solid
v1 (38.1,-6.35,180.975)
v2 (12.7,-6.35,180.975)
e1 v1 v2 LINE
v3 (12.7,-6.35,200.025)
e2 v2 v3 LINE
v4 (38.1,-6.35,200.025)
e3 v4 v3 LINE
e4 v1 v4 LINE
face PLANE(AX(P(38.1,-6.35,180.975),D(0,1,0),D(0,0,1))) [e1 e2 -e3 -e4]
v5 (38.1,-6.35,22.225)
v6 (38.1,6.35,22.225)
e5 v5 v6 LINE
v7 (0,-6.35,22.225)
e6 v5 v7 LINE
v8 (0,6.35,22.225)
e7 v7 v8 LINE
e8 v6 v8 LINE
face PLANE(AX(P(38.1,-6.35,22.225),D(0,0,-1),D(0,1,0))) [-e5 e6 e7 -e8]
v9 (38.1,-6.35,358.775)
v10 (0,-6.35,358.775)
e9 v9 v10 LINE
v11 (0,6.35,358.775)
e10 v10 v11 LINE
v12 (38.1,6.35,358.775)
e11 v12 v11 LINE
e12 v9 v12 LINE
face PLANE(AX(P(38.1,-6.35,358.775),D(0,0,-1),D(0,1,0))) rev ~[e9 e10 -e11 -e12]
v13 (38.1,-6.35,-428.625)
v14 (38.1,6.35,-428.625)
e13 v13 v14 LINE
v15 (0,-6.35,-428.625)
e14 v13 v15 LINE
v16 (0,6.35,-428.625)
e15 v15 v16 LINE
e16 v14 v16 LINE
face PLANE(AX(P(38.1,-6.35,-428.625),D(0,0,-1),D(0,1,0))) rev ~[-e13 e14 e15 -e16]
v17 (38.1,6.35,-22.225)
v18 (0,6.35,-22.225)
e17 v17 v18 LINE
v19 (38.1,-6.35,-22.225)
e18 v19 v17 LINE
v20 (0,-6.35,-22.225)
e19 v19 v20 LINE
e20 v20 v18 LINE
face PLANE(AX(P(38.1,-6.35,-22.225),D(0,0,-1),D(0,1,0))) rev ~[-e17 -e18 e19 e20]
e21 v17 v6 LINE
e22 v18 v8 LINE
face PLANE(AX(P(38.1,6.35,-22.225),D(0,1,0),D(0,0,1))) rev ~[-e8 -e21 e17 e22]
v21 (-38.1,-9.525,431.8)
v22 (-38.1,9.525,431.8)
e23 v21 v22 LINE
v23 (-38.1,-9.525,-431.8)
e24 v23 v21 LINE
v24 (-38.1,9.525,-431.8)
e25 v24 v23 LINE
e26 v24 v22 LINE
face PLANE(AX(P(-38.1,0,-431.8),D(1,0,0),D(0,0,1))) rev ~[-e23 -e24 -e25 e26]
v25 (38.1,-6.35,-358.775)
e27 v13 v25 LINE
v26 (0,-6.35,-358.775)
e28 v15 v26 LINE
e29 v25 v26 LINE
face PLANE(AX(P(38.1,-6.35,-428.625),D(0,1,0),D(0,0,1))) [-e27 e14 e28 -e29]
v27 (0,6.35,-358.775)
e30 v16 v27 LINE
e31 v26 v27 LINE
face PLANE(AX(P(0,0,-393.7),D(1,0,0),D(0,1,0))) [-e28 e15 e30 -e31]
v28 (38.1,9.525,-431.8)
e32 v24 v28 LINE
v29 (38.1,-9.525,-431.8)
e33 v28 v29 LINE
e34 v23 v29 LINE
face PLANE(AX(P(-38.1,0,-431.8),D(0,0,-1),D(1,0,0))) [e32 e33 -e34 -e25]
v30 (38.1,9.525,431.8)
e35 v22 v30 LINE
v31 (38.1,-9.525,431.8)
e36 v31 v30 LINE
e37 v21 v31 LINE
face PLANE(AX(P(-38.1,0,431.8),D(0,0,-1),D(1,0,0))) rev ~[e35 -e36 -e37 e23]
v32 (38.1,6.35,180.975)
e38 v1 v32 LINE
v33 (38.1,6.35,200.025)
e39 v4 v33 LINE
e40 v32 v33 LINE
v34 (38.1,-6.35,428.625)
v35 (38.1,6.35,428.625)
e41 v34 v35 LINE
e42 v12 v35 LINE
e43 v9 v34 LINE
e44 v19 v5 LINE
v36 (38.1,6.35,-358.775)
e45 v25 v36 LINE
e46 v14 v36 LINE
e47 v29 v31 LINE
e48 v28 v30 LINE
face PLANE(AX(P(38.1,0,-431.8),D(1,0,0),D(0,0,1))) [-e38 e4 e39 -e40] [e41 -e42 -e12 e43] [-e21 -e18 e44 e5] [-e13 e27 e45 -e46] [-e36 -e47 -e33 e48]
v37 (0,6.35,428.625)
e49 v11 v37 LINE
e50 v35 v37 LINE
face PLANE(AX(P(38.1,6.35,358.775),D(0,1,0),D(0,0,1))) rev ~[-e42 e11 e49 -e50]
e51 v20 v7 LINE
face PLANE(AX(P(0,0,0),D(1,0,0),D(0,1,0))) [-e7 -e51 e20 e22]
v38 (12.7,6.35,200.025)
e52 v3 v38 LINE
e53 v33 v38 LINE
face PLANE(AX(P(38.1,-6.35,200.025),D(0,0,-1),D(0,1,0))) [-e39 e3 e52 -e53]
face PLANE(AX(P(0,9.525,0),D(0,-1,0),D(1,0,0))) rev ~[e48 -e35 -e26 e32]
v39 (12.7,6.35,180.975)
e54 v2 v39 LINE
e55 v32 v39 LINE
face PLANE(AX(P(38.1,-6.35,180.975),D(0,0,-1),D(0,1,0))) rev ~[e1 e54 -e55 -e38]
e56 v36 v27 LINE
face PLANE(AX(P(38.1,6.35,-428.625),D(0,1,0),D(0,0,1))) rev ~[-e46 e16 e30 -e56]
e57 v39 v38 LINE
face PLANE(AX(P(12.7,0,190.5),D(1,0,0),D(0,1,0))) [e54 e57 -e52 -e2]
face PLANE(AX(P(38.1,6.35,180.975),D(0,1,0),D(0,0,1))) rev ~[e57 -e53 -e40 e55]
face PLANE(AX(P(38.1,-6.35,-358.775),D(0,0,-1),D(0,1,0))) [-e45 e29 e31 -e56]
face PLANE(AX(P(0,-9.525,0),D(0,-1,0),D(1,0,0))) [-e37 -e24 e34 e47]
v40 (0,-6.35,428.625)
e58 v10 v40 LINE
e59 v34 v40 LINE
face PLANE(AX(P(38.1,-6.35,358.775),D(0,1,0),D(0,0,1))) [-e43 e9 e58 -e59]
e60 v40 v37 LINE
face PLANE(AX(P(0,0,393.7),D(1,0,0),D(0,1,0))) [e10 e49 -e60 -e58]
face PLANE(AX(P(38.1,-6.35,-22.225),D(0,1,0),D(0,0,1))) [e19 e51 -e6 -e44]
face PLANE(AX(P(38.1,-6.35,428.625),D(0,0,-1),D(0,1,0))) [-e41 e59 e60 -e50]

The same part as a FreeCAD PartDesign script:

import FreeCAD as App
import Part
import Sketcher
from FreeCAD import Vector
Q = App.Units.Quantity

doc = App.newDocument("Part")
body = doc.addObject("PartDesign::Body", "Body")

# Sketch on XZ plane
sketch1 = doc.addObject("Sketcher::SketchObject", "Sketch")
body.addObject(sketch1)
sketch1.AttachmentSupport = (doc.XZ_Plane, [""])
sketch1.MapMode = "FlatFace"
sketch1.addGeometry(Part.LineSegment(Vector(-38, 432, 0), Vector(-38, -432, 0)), False)
sketch1.addGeometry(Part.LineSegment(Vector(-38, -432, 0), Vector(38, -432, 0)), False)
sketch1.addGeometry(Part.LineSegment(Vector(38, -432, 0), Vector(38, 432, 0)), False)
sketch1.addGeometry(Part.LineSegment(Vector(38, 432, 0), Vector(-38, 432, 0)), False)
sketch1.addConstraint(Sketcher.Constraint("Coincident", 0, 2, 1, 1))
sketch1.addConstraint(Sketcher.Constraint("Coincident", 1, 2, 2, 1))
sketch1.addConstraint(Sketcher.Constraint("Coincident", 2, 2, 3, 1))
sketch1.addConstraint(Sketcher.Constraint("Coincident", 3, 2, 0, 1))
sketch1.addConstraint(Sketcher.Constraint("Vertical", 0))
sketch1.addConstraint(Sketcher.Constraint("Horizontal", 1))
sketch1.addConstraint(Sketcher.Constraint("Vertical", 2))
sketch1.addConstraint(Sketcher.Constraint("Horizontal", 3))
sketch1.addConstraint(Sketcher.Constraint("Symmetric", 0, 2, 2, 2, -1, 1))
sketch1.addConstraint(Sketcher.Constraint("DistanceX", 1, 1, 1, 2, Q("3 in")))
sketch1.addConstraint(Sketcher.Constraint("DistanceY", 0, 2, 0, 1, Q("34 in")))
pad1 = doc.addObject("PartDesign::Pad", "Pad")
body.addObject(pad1)
pad1.Profile = sketch1
pad1.Length = Q("0.75 in")
pad1.Midplane = True

# Sketch on YZ plane
sketch2 = doc.addObject("Sketcher::SketchObject", "Sketch001")
body.addObject(sketch2)
sketch2.AttachmentSupport = (doc.YZ_Plane, [""])
sketch2.MapMode = "FlatFace"
sketch2.AttachmentOffset = App.Placement(Vector(0, 0, 1.5 * 25.4), App.Rotation())
sketch2.addGeometry(Part.LineSegment(Vector(-6, 429, 0), Vector(-6, 359, 0)), False)
sketch2.addGeometry(Part.LineSegment(Vector(-6, 359, 0), Vector(6, 359, 0)), False)
sketch2.addGeometry(Part.LineSegment(Vector(6, 359, 0), Vector(6, 429, 0)), False)
sketch2.addGeometry(Part.LineSegment(Vector(6, 429, 0), Vector(-6, 429, 0)), False)
sketch2.addConstraint(Sketcher.Constraint("Coincident", 0, 2, 1, 1))
sketch2.addConstraint(Sketcher.Constraint("Coincident", 1, 2, 2, 1))
sketch2.addConstraint(Sketcher.Constraint("Coincident", 2, 2, 3, 1))
sketch2.addConstraint(Sketcher.Constraint("Coincident", 3, 2, 0, 1))
sketch2.addConstraint(Sketcher.Constraint("Vertical", 0))
sketch2.addConstraint(Sketcher.Constraint("Horizontal", 1))
sketch2.addConstraint(Sketcher.Constraint("Vertical", 2))
sketch2.addConstraint(Sketcher.Constraint("Horizontal", 3))
sketch2.addConstraint(Sketcher.Constraint("DistanceX", 1, 1, 1, 2, Q("0.5 in")))
sketch2.addConstraint(Sketcher.Constraint("DistanceY", 0, 2, 0, 1, Q("2.75 in")))
sketch2.addConstraint(Sketcher.Constraint("DistanceX", 0, 2, -1, 1, Q("0.25 in")))
sketch2.addConstraint(Sketcher.Constraint("DistanceY", -1, 1, 0, 2, Q("14.125 in")))
pocket1 = doc.addObject("PartDesign::Pocket", "Pocket")
body.addObject(pocket1)
pocket1.Profile = sketch2
pocket1.Length = Q("1.5 in")

# Sketch on YZ plane
sketch3 = doc.addObject("Sketcher::SketchObject", "Sketch002")
body.addObject(sketch3)
sketch3.AttachmentSupport = (doc.YZ_Plane, [""])
sketch3.MapMode = "FlatFace"
sketch3.AttachmentOffset = App.Placement(Vector(0, 0, 1.5 * 25.4), App.Rotation())
sketch3.addGeometry(Part.LineSegment(Vector(-6, 22, 0), Vector(-6, -22, 0)), False)
sketch3.addGeometry(Part.LineSegment(Vector(-6, -22, 0), Vector(6, -22, 0)), False)
sketch3.addGeometry(Part.LineSegment(Vector(6, -22, 0), Vector(6, 22, 0)), False)
sketch3.addGeometry(Part.LineSegment(Vector(6, 22, 0), Vector(-6, 22, 0)), False)
sketch3.addConstraint(Sketcher.Constraint("Coincident", 0, 2, 1, 1))
sketch3.addConstraint(Sketcher.Constraint("Coincident", 1, 2, 2, 1))
sketch3.addConstraint(Sketcher.Constraint("Coincident", 2, 2, 3, 1))
sketch3.addConstraint(Sketcher.Constraint("Coincident", 3, 2, 0, 1))
sketch3.addConstraint(Sketcher.Constraint("Vertical", 0))
sketch3.addConstraint(Sketcher.Constraint("Horizontal", 1))
sketch3.addConstraint(Sketcher.Constraint("Vertical", 2))
sketch3.addConstraint(Sketcher.Constraint("Horizontal", 3))
sketch3.addConstraint(Sketcher.Constraint("Symmetric", 0, 2, 2, 2, -1, 1))
sketch3.addConstraint(Sketcher.Constraint("DistanceX", 1, 1, 1, 2, Q("0.5 in")))
sketch3.addConstraint(Sketcher.Constraint("DistanceY", 0, 2, 0, 1, Q("1.75 in")))
pocket2 = doc.addObject("PartDesign::Pocket", "Pocket001")
body.addObject(pocket2)
pocket2.Profile = sketch3
pocket2.Length = Q("1.5 in")

# Sketch on YZ plane
sketch4 = doc.addObject("Sketcher::SketchObject", "Sketch003")
body.addObject(sketch4)
sketch4.AttachmentSupport = (doc.YZ_Plane, [""])
sketch4.MapMode = "FlatFace"
sketch4.AttachmentOffset = App.Placement(Vector(0, 0, 1.5 * 25.4), App.Rotation())
sketch4.addGeometry(Part.LineSegment(Vector(-6, -359, 0), Vector(-6, -429, 0)), False)
sketch4.addGeometry(Part.LineSegment(Vector(-6, -429, 0), Vector(6, -429, 0)), False)
sketch4.addGeometry(Part.LineSegment(Vector(6, -429, 0), Vector(6, -359, 0)), False)
sketch4.addGeometry(Part.LineSegment(Vector(6, -359, 0), Vector(-6, -359, 0)), False)
sketch4.addConstraint(Sketcher.Constraint("Coincident", 0, 2, 1, 1))
sketch4.addConstraint(Sketcher.Constraint("Coincident", 1, 2, 2, 1))
sketch4.addConstraint(Sketcher.Constraint("Coincident", 2, 2, 3, 1))
sketch4.addConstraint(Sketcher.Constraint("Coincident", 3, 2, 0, 1))
sketch4.addConstraint(Sketcher.Constraint("Vertical", 0))
sketch4.addConstraint(Sketcher.Constraint("Horizontal", 1))
sketch4.addConstraint(Sketcher.Constraint("Vertical", 2))
sketch4.addConstraint(Sketcher.Constraint("Horizontal", 3))
sketch4.addConstraint(Sketcher.Constraint("DistanceX", 1, 1, 1, 2, Q("0.5 in")))
sketch4.addConstraint(Sketcher.Constraint("DistanceY", 0, 2, 0, 1, Q("2.75 in")))
sketch4.addConstraint(Sketcher.Constraint("DistanceX", 0, 2, -1, 1, Q("0.25 in")))
sketch4.addConstraint(Sketcher.Constraint("DistanceY", 0, 2, -1, 1, Q("16.875 in")))
pocket3 = doc.addObject("PartDesign::Pocket", "Pocket002")
body.addObject(pocket3)
pocket3.Profile = sketch4
pocket3.Length = Q("1.5 in")

# Sketch on YZ plane
sketch5 = doc.addObject("Sketcher::SketchObject", "Sketch004")
body.addObject(sketch5)
sketch5.AttachmentSupport = (doc.YZ_Plane, [""])
sketch5.MapMode = "FlatFace"
sketch5.AttachmentOffset = App.Placement(Vector(0, 0, 1.5 * 25.4), App.Rotation())
sketch5.addGeometry(Part.LineSegment(Vector(-6, 200, 0), Vector(-6, 181, 0)), False)
sketch5.addGeometry(Part.LineSegment(Vector(-6, 181, 0), Vector(6, 181, 0)), False)
sketch5.addGeometry(Part.LineSegment(Vector(6, 181, 0), Vector(6, 200, 0)), False)
sketch5.addGeometry(Part.LineSegment(Vector(6, 200, 0), Vector(-6, 200, 0)), False)
sketch5.addConstraint(Sketcher.Constraint("Coincident", 0, 2, 1, 1))
sketch5.addConstraint(Sketcher.Constraint("Coincident", 1, 2, 2, 1))
sketch5.addConstraint(Sketcher.Constraint("Coincident", 2, 2, 3, 1))
sketch5.addConstraint(Sketcher.Constraint("Coincident", 3, 2, 0, 1))
sketch5.addConstraint(Sketcher.Constraint("Vertical", 0))
sketch5.addConstraint(Sketcher.Constraint("Horizontal", 1))
sketch5.addConstraint(Sketcher.Constraint("Vertical", 2))
sketch5.addConstraint(Sketcher.Constraint("Horizontal", 3))
sketch5.addConstraint(Sketcher.Constraint("DistanceX", 1, 1, 1, 2, Q("0.5 in")))
sketch5.addConstraint(Sketcher.Constraint("DistanceY", 0, 2, 0, 1, Q("0.75 in")))
sketch5.addConstraint(Sketcher.Constraint("DistanceX", 0, 2, -1, 1, Q("0.25 in")))
sketch5.addConstraint(Sketcher.Constraint("DistanceY", -1, 1, 0, 2, Q("7.125 in")))
pocket4 = doc.addObject("PartDesign::Pocket", "Pocket003")
body.addObject(pocket4)
pocket4.Profile = sketch5
pocket4.Length = Q("1 in")

doc.recompute()
